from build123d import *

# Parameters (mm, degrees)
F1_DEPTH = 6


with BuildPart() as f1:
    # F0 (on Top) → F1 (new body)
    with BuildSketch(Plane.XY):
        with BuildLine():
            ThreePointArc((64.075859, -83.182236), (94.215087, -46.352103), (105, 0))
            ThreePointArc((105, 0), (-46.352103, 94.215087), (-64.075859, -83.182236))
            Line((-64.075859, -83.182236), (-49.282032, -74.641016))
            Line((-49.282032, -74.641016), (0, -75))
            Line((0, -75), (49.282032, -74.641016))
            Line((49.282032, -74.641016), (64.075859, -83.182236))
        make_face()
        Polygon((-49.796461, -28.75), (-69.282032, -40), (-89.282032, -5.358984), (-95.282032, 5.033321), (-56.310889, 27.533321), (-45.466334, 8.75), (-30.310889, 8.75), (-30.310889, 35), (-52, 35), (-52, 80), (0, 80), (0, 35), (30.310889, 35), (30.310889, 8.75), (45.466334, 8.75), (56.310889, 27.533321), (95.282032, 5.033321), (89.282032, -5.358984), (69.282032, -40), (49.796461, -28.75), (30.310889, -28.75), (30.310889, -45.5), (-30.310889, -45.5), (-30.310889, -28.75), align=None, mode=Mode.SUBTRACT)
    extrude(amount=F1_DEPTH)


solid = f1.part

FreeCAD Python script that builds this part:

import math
import FreeCAD as App
import Part
import Sketcher
Q = App.Units.Quantity

doc = App.newDocument("Part")
body = doc.addObject("PartDesign::Body", "Body")

sketch1 = body.newObject("Sketcher::SketchObject", "Sketch")
sketch1.AttachmentSupport = (doc.getObject("XY_Plane"), [""])
sketch1.MapMode = "FlatFace"
sketch1.addGeometry([
    Part.ArcOfCircle(Part.Circle(App.Vector(0, 0, 0), App.Vector(0, 0, 1), 105), math.radians(-52), math.radians(0)),
    Part.ArcOfCircle(Part.Circle(App.Vector(0, 0, 0), App.Vector(0, 0, 1), 105), math.radians(0), math.radians(232)),
    Part.LineSegment(App.Vector(-64, -83, 0), App.Vector(-49, -75, 0)),
    Part.LineSegment(App.Vector(-49, -75, 0), App.Vector(0, -75, 0)),
    Part.LineSegment(App.Vector(0, -75, 0), App.Vector(49, -75, 0)),
    Part.LineSegment(App.Vector(49, -75, 0), App.Vector(64, -83, 0)),
    Part.LineSegment(App.Vector(-30, -29, 0), App.Vector(-50, -29, 0)),
    Part.LineSegment(App.Vector(-50, -29, 0), App.Vector(-69, -40, 0)),
    Part.LineSegment(App.Vector(-69, -40, 0), App.Vector(-89, -5, 0)),
    Part.LineSegment(App.Vector(-89, -5, 0), App.Vector(-95, 5, 0)),
    Part.LineSegment(App.Vector(-95, 5, 0), App.Vector(-56, 28, 0)),
    Part.LineSegment(App.Vector(-56, 28, 0), App.Vector(-45, 9, 0)),
    Part.LineSegment(App.Vector(-45, 9, 0), App.Vector(-30, 9, 0)),
    Part.LineSegment(App.Vector(-30, 9, 0), App.Vector(-30, 35, 0)),
    Part.LineSegment(App.Vector(-30, 35, 0), App.Vector(-52, 35, 0)),
    Part.LineSegment(App.Vector(-52, 35, 0), App.Vector(-52, 80, 0)),
    Part.LineSegment(App.Vector(-52, 80, 0), App.Vector(0, 80, 0)),
    Part.LineSegment(App.Vector(0, 80, 0), App.Vector(0, 35, 0)),
    Part.LineSegment(App.Vector(0, 35, 0), App.Vector(30, 35, 0)),
    Part.LineSegment(App.Vector(30, 35, 0), App.Vector(30, 9, 0)),
    Part.LineSegment(App.Vector(30, 9, 0), App.Vector(45, 9, 0)),
    Part.LineSegment(App.Vector(45, 9, 0), App.Vector(56, 28, 0)),
    Part.LineSegment(App.Vector(56, 28, 0), App.Vector(95, 5, 0)),
    Part.LineSegment(App.Vector(95, 5, 0), App.Vector(89, -5, 0)),
    Part.LineSegment(App.Vector(89, -5, 0), App.Vector(69, -40, 0)),
    Part.LineSegment(App.Vector(69, -40, 0), App.Vector(50, -29, 0)),
    Part.LineSegment(App.Vector(50, -29, 0), App.Vector(30, -29, 0)),
    Part.LineSegment(App.Vector(30, -29, 0), App.Vector(30, -46, 0)),
    Part.LineSegment(App.Vector(30, -46, 0), App.Vector(-30, -46, 0)),
    Part.LineSegment(App.Vector(-30, -46, 0), App.Vector(-30, -29, 0)),
], False)
sketch1.addConstraint([
    Sketcher.Constraint("Tangent", 0, 2, 1, 1),
    Sketcher.Constraint("Coincident", 1, 2, 2, 1),
    Sketcher.Constraint("Coincident", 2, 2, 3, 1),
    Sketcher.Constraint("Coincident", 3, 2, 4, 1),
    Sketcher.Constraint("Coincident", 4, 2, 5, 1),
    Sketcher.Constraint("Coincident", 5, 2, 0, 1),
    Sketcher.Constraint("Coincident", 6, 2, 7, 1),
    Sketcher.Constraint("Coincident", 7, 2, 8, 1),
    Sketcher.Constraint("Coincident", 8, 2, 9, 1),
    Sketcher.Constraint("Coincident", 9, 2, 10, 1),
    Sketcher.Constraint("Coincident", 10, 2, 11, 1),
    Sketcher.Constraint("Coincident", 11, 2, 12, 1),
    Sketcher.Constraint("Coincident", 12, 2, 13, 1),
    Sketcher.Constraint("Coincident", 13, 2, 14, 1),
    Sketcher.Constraint("Coincident", 14, 2, 15, 1),
    Sketcher.Constraint("Coincident", 15, 2, 16, 1),
    Sketcher.Constraint("Coincident", 16, 2, 17, 1),
    Sketcher.Constraint("Coincident", 17, 2, 18, 1),
    Sketcher.Constraint("Coincident", 18, 2, 19, 1),
    Sketcher.Constraint("Coincident", 19, 2, 20, 1),
    Sketcher.Constraint("Coincident", 20, 2, 21, 1),
    Sketcher.Constraint("Coincident", 21, 2, 22, 1),
    Sketcher.Constraint("Coincident", 22, 2, 23, 1),
    Sketcher.Constraint("Coincident", 23, 2, 24, 1),
    Sketcher.Constraint("Coincident", 24, 2, 25, 1),
    Sketcher.Constraint("Coincident", 25, 2, 26, 1),
    Sketcher.Constraint("Coincident", 26, 2, 27, 1),
    Sketcher.Constraint("Coincident", 27, 2, 28, 1),
    Sketcher.Constraint("Coincident", 28, 2, 29, 1),
    Sketcher.Constraint("Coincident", 29, 2, 6, 1),
    Sketcher.Constraint("Horizontal", 6),
    Sketcher.Constraint("Horizontal", 12),
    Sketcher.Constraint("Vertical", 13),
    Sketcher.Constraint("Horizontal", 14),
    Sketcher.Constraint("Vertical", 15),
    Sketcher.Constraint("Horizontal", 16),
    Sketcher.Constraint("Vertical", 17),
    Sketcher.Constraint("Horizontal", 18),
    Sketcher.Constraint("Vertical", 19),
    Sketcher.Constraint("Horizontal", 20),
    Sketcher.Constraint("Horizontal", 26),
    Sketcher.Constraint("Vertical", 27),
    Sketcher.Constraint("Horizontal", 28),
    Sketcher.Constraint("Vertical", 29),
    Sketcher.Constraint("Coincident", 0, 3, -1, 1),
    Sketcher.Constraint("Equal", 0, 1),
    Sketcher.Constraint("Symmetric", 2, 2, 4, 2, -2),
    Sketcher.Constraint("Symmetric", 13, 2, 18, 2, -2),
    Sketcher.Constraint("Symmetric", 11, 2, 20, 2, -2),
    Sketcher.Constraint("Symmetric", 10, 2, 21, 2, -2),
    Sketcher.Constraint("Symmetric", 9, 2, 22, 2, -2),
    Sketcher.Constraint("Symmetric", 8, 2, 23, 2, -2),
    Sketcher.Constraint("Symmetric", 7, 2, 24, 2, -2),
    Sketcher.Constraint("Symmetric", 6, 2, 25, 2, -2),
    Sketcher.Constraint("PointOnObject", 0, 2, -1),
    Sketcher.Constraint("PointOnObject", 3, 2, -2),
    Sketcher.Constraint("PointOnObject", 16, 2, -2),
    Sketcher.Constraint("Parallel", 2, 7),
    Sketcher.Constraint("Perpendicular", 7, 8),
    Sketcher.Constraint("Parallel", 8, 9),
    Sketcher.Constraint("Perpendicular", 9, 10),
    Sketcher.Constraint("Perpendicular", 10, 11),
    Sketcher.Constraint("Perpendicular", 5, 21),
    Sketcher.Constraint("Vertical", 19, 2, 26, 2),
    Sketcher.Constraint("Vertical", 13, 2, 28, 2),
    Sketcher.Constraint("Radius", 0, 104.999999),
    Sketcher.Constraint("DistanceX", 16, 1, 16, 2, 52.0),
    Sketcher.Constraint("DistanceY", 15, 1, 15, 2, 45.0),
    Sketcher.Constraint("Angle", 2, Q("30 deg")),
    Sketcher.Constraint("Distance", 8, 40.0),
    Sketcher.Constraint("Distance", 9, 12.0),
    Sketcher.Constraint("Distance", 10, 45.0),
    Sketcher.Constraint("DistanceY", 3, 2, -1, 1, 75.0),
    Sketcher.Constraint("DistanceY", 7, 2, -1, 1, 40.0),
    Sketcher.Constraint("DistanceY", -1, 1, 13, 2, 35.0),
    Sketcher.Constraint("DistanceX", 7, 2, 2, 2, 20.0),
    Sketcher.Constraint("DistanceX", 10, 2, 12, 2, 26.0),
    Sketcher.Constraint("Distance", 7, 22.499999),
    Sketcher.Constraint("DistanceY", 13, 1, 13, 2, 26.25),
    Sketcher.Constraint("DistanceY", 27, 2, 27, 1, 16.75),
    Sketcher.Constraint("DistanceX", 14, 2, 14, 1, 21.689111),
    Sketcher.Constraint("Distance", 2, 17.08244),
])
pad1 = body.newObject("PartDesign::Pad", "Pad")
pad1.Profile = sketch1
pad1.Length = 6

doc.recompute()
